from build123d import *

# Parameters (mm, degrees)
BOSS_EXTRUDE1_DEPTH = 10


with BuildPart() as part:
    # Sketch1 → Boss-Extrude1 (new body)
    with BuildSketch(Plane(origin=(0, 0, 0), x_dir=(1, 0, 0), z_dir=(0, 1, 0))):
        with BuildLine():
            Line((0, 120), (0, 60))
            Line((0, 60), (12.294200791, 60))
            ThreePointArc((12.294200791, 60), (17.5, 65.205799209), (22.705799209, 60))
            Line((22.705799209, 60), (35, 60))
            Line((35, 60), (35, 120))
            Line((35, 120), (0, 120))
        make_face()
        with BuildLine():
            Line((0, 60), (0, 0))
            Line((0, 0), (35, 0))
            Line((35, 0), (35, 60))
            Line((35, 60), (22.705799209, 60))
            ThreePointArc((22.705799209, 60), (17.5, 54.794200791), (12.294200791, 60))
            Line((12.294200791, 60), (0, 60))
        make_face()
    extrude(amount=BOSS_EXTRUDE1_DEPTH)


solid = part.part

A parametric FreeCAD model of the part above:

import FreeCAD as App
import Part
import Sketcher
Q = App.Units.Quantity

doc = App.newDocument("Part")
body = doc.addObject("PartDesign::Body", "Body")

# Sketch on XZ plane
sketch1 = body.newObject("Sketcher::SketchObject", "Sketch")
sketch1.AttachmentSupport = (doc.getObject("XZ_Plane"), [""])
sketch1.MapMode = "FlatFace"
sketch1.addGeometry([
    Part.LineSegment(App.Vector(0, -120, 0), App.Vector(0, 0, 0)),  # 0
    Part.LineSegment(App.Vector(0, 0, 0), App.Vector(35, 0, 0)),  # 1
    Part.LineSegment(App.Vector(35, 0, 0), App.Vector(35, -120, 0)),  # 2
    Part.LineSegment(App.Vector(35, -120, 0), App.Vector(0, -120, 0)),  # 3
    Part.Circle(App.Vector(18, -60, 0), App.Vector(0, 0, 1), 5),  # 4
], False)
sketch1.addConstraint([
    Sketcher.Constraint("Coincident", 0, 2, 1, 1),
    Sketcher.Constraint("Coincident", 1, 2, 2, 1),
    Sketcher.Constraint("Coincident", 2, 2, 3, 1),
    Sketcher.Constraint("Coincident", 3, 2, 0, 1),
    Sketcher.Constraint("Vertical", 0),
    Sketcher.Constraint("Horizontal", 1),
    Sketcher.Constraint("Vertical", 2),
    Sketcher.Constraint("Horizontal", 3),
    Sketcher.Constraint("Coincident", 0, 2, -1, 1),
    Sketcher.Constraint("DistanceX", 1, 1, 1, 2, Q("35 mm")),
    Sketcher.Constraint("DistanceY", 0, 1, 0, 2, Q("120 mm")),
    Sketcher.Constraint("DistanceY", 4, 3, -1, 1, Q("60 mm")),
    Sketcher.Constraint("Diameter", 4, Q("10.411598 mm")),
    Sketcher.Constraint("DistanceX", -1, 1, 4, 3, Q("17.5 mm")),
])
pad1 = body.newObject("PartDesign::Pad", "Pad")
pad1.Profile = sketch1
pad1.Length = 10
pad1.Reversed = True

doc.recompute()
